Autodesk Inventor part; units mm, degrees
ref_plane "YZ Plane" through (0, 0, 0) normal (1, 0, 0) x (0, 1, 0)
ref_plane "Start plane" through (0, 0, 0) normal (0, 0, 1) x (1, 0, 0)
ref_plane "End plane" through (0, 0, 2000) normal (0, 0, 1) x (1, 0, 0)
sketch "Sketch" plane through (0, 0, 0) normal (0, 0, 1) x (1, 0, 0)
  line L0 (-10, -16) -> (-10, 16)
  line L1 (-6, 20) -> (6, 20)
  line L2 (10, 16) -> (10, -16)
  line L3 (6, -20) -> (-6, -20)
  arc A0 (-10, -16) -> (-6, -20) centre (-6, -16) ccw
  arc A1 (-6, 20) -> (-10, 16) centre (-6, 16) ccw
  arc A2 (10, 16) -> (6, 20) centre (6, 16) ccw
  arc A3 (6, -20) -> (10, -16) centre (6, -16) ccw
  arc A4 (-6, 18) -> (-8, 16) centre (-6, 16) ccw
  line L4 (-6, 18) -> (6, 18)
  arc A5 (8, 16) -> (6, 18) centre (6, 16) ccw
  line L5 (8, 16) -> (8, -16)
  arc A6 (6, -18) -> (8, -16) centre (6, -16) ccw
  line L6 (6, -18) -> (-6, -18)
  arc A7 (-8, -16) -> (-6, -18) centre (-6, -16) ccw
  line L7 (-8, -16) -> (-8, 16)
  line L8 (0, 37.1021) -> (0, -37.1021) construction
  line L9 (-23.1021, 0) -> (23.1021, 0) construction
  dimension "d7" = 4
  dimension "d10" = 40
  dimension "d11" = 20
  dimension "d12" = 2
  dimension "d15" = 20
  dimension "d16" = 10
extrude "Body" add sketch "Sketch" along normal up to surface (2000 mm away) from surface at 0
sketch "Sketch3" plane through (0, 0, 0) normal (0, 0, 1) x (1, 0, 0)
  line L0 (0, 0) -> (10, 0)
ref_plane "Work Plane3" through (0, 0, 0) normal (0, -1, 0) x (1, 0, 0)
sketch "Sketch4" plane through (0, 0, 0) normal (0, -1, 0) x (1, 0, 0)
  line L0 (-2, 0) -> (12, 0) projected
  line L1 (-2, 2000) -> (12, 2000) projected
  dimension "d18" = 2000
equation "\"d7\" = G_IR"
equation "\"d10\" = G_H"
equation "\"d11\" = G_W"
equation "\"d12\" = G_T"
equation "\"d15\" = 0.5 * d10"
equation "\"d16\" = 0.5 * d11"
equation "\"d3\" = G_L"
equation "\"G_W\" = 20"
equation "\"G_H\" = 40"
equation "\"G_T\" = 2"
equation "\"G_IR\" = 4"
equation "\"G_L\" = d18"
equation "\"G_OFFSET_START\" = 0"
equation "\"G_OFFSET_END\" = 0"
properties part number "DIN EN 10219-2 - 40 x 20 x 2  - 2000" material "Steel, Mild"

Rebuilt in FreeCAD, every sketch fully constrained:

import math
import FreeCAD as App
import Part
import Sketcher
from FreeCAD import Vector
Q = App.Units.Quantity

doc = App.newDocument("Part")
params = doc.addObject("Spreadsheet::Sheet", "Params")
for row, (alias, value) in enumerate([
    ("sketch1_radius", "4 mm"),
    ("sketch1_radius2", "2 mm"),
    ("pad1_length", "2000 mm"),
], start=1):
    params.set(f"A{row}", alias)
    params.set(f"B{row}", "=" + value)
    params.setAlias(f"B{row}", alias)

body = doc.addObject("PartDesign::Body", "Body")

# Sketch on XY plane
sketch1 = body.newObject("Sketcher::SketchObject", "Sketch")
sketch1.AttachmentSupport = (doc.getObject("XY_Plane"), [""])
sketch1.MapMode = "FlatFace"
sketch1.addGeometry([
    Part.LineSegment(Vector(-10, 16, 0), Vector(-10, -16, 0)),  # 0
    Part.ArcOfCircle(Part.Circle(Vector(-6, -16, 0), Vector(0, 0, 1), 4), math.radians(180), math.radians(270)),  # 1
    Part.LineSegment(Vector(-6, -20, 0), Vector(6, -20, 0)),  # 2
    Part.ArcOfCircle(Part.Circle(Vector(6, -16, 0), Vector(0, 0, 1), 4), math.radians(-90), math.radians(0)),  # 3
    Part.LineSegment(Vector(10, -16, 0), Vector(10, 16, 0)),  # 4
    Part.ArcOfCircle(Part.Circle(Vector(6, 16, 0), Vector(0, 0, 1), 4), math.radians(0), math.radians(90)),  # 5
    Part.LineSegment(Vector(6, 20, 0), Vector(-6, 20, 0)),  # 6
    Part.ArcOfCircle(Part.Circle(Vector(-6, 16, 0), Vector(0, 0, 1), 4), math.radians(90), math.radians(180)),  # 7
    Part.ArcOfCircle(Part.Circle(Vector(-6, 16, 0), Vector(0, 0, 1), 2), math.radians(90), math.radians(180)),  # 8
    Part.LineSegment(Vector(-6, 18, 0), Vector(6, 18, 0)),  # 9
    Part.ArcOfCircle(Part.Circle(Vector(6, 16, 0), Vector(0, 0, 1), 2), math.radians(0), math.radians(90)),  # 10
    Part.LineSegment(Vector(8, 16, 0), Vector(8, -16, 0)),  # 11
    Part.ArcOfCircle(Part.Circle(Vector(6, -16, 0), Vector(0, 0, 1), 2), math.radians(-90), math.radians(0)),  # 12
    Part.LineSegment(Vector(6, -18, 0), Vector(-6, -18, 0)),  # 13
    Part.ArcOfCircle(Part.Circle(Vector(-6, -16, 0), Vector(0, 0, 1), 2), math.radians(180), math.radians(270)),  # 14
    Part.LineSegment(Vector(-8, -16, 0), Vector(-8, 16, 0)),  # 15
], False)
sketch1.addConstraint([
    Sketcher.Constraint("Tangent", 0, 2, 1, 1),
    Sketcher.Constraint("Tangent", 1, 2, 2, 1),
    Sketcher.Constraint("Tangent", 2, 2, 3, 1),
    Sketcher.Constraint("Tangent", 3, 2, 4, 1),
    Sketcher.Constraint("Tangent", 4, 2, 5, 1),
    Sketcher.Constraint("Tangent", 5, 2, 6, 1),
    Sketcher.Constraint("Tangent", 6, 2, 7, 1),
    Sketcher.Constraint("Tangent", 7, 2, 0, 1),
    Sketcher.Constraint("Tangent", 8, 1, 9, 1),
    Sketcher.Constraint("Tangent", 9, 2, 10, 2),
    Sketcher.Constraint("Tangent", 10, 1, 11, 1),
    Sketcher.Constraint("Tangent", 11, 2, 12, 2),
    Sketcher.Constraint("Tangent", 12, 1, 13, 1),
    Sketcher.Constraint("Tangent", 13, 2, 14, 2),
    Sketcher.Constraint("Tangent", 14, 1, 15, 1),
    Sketcher.Constraint("Tangent", 15, 2, 8, 2),
    Sketcher.Constraint("Vertical", 0),
    Sketcher.Constraint("Horizontal", 2),
    Sketcher.Constraint("Vertical", 4),
    Sketcher.Constraint("Horizontal", 6),
    Sketcher.Constraint("Horizontal", 9),
    Sketcher.Constraint("Vertical", 11),
    Sketcher.Constraint("Horizontal", 13),
    Sketcher.Constraint("Vertical", 15),
    Sketcher.Constraint("Coincident", 8, 3, 7, 3),
    Sketcher.Constraint("Coincident", 10, 3, 5, 3),
    Sketcher.Constraint("Coincident", 12, 3, 3, 3),
    Sketcher.Constraint("Equal", 1, 3),
    Sketcher.Constraint("Equal", 3, 5),
    Sketcher.Constraint("Equal", 5, 7),
    Sketcher.Constraint("Equal", 12, 14),
    Sketcher.Constraint("Symmetric", 1, 3, 5, 3, -1, 1),
    Sketcher.Constraint("Radius", 1, Q("4 mm")),
    Sketcher.Constraint("Radius", 8, Q("2 mm")),
    Sketcher.Constraint("DistanceX", 0, 2, -1, 1, Q("10 mm")),
    Sketcher.Constraint("DistanceY", 1, 2, -1, 1, Q("20 mm")),
])
sketch1.setExpression("Constraints[32]", "Params.sketch1_radius")
sketch1.setExpression("Constraints[33]", "Params.sketch1_radius2")
pad1 = body.newObject("PartDesign::Pad", "Pad")
pad1.Profile = sketch1
pad1.setExpression("Length", "Params.pad1_length")

doc.recompute()
